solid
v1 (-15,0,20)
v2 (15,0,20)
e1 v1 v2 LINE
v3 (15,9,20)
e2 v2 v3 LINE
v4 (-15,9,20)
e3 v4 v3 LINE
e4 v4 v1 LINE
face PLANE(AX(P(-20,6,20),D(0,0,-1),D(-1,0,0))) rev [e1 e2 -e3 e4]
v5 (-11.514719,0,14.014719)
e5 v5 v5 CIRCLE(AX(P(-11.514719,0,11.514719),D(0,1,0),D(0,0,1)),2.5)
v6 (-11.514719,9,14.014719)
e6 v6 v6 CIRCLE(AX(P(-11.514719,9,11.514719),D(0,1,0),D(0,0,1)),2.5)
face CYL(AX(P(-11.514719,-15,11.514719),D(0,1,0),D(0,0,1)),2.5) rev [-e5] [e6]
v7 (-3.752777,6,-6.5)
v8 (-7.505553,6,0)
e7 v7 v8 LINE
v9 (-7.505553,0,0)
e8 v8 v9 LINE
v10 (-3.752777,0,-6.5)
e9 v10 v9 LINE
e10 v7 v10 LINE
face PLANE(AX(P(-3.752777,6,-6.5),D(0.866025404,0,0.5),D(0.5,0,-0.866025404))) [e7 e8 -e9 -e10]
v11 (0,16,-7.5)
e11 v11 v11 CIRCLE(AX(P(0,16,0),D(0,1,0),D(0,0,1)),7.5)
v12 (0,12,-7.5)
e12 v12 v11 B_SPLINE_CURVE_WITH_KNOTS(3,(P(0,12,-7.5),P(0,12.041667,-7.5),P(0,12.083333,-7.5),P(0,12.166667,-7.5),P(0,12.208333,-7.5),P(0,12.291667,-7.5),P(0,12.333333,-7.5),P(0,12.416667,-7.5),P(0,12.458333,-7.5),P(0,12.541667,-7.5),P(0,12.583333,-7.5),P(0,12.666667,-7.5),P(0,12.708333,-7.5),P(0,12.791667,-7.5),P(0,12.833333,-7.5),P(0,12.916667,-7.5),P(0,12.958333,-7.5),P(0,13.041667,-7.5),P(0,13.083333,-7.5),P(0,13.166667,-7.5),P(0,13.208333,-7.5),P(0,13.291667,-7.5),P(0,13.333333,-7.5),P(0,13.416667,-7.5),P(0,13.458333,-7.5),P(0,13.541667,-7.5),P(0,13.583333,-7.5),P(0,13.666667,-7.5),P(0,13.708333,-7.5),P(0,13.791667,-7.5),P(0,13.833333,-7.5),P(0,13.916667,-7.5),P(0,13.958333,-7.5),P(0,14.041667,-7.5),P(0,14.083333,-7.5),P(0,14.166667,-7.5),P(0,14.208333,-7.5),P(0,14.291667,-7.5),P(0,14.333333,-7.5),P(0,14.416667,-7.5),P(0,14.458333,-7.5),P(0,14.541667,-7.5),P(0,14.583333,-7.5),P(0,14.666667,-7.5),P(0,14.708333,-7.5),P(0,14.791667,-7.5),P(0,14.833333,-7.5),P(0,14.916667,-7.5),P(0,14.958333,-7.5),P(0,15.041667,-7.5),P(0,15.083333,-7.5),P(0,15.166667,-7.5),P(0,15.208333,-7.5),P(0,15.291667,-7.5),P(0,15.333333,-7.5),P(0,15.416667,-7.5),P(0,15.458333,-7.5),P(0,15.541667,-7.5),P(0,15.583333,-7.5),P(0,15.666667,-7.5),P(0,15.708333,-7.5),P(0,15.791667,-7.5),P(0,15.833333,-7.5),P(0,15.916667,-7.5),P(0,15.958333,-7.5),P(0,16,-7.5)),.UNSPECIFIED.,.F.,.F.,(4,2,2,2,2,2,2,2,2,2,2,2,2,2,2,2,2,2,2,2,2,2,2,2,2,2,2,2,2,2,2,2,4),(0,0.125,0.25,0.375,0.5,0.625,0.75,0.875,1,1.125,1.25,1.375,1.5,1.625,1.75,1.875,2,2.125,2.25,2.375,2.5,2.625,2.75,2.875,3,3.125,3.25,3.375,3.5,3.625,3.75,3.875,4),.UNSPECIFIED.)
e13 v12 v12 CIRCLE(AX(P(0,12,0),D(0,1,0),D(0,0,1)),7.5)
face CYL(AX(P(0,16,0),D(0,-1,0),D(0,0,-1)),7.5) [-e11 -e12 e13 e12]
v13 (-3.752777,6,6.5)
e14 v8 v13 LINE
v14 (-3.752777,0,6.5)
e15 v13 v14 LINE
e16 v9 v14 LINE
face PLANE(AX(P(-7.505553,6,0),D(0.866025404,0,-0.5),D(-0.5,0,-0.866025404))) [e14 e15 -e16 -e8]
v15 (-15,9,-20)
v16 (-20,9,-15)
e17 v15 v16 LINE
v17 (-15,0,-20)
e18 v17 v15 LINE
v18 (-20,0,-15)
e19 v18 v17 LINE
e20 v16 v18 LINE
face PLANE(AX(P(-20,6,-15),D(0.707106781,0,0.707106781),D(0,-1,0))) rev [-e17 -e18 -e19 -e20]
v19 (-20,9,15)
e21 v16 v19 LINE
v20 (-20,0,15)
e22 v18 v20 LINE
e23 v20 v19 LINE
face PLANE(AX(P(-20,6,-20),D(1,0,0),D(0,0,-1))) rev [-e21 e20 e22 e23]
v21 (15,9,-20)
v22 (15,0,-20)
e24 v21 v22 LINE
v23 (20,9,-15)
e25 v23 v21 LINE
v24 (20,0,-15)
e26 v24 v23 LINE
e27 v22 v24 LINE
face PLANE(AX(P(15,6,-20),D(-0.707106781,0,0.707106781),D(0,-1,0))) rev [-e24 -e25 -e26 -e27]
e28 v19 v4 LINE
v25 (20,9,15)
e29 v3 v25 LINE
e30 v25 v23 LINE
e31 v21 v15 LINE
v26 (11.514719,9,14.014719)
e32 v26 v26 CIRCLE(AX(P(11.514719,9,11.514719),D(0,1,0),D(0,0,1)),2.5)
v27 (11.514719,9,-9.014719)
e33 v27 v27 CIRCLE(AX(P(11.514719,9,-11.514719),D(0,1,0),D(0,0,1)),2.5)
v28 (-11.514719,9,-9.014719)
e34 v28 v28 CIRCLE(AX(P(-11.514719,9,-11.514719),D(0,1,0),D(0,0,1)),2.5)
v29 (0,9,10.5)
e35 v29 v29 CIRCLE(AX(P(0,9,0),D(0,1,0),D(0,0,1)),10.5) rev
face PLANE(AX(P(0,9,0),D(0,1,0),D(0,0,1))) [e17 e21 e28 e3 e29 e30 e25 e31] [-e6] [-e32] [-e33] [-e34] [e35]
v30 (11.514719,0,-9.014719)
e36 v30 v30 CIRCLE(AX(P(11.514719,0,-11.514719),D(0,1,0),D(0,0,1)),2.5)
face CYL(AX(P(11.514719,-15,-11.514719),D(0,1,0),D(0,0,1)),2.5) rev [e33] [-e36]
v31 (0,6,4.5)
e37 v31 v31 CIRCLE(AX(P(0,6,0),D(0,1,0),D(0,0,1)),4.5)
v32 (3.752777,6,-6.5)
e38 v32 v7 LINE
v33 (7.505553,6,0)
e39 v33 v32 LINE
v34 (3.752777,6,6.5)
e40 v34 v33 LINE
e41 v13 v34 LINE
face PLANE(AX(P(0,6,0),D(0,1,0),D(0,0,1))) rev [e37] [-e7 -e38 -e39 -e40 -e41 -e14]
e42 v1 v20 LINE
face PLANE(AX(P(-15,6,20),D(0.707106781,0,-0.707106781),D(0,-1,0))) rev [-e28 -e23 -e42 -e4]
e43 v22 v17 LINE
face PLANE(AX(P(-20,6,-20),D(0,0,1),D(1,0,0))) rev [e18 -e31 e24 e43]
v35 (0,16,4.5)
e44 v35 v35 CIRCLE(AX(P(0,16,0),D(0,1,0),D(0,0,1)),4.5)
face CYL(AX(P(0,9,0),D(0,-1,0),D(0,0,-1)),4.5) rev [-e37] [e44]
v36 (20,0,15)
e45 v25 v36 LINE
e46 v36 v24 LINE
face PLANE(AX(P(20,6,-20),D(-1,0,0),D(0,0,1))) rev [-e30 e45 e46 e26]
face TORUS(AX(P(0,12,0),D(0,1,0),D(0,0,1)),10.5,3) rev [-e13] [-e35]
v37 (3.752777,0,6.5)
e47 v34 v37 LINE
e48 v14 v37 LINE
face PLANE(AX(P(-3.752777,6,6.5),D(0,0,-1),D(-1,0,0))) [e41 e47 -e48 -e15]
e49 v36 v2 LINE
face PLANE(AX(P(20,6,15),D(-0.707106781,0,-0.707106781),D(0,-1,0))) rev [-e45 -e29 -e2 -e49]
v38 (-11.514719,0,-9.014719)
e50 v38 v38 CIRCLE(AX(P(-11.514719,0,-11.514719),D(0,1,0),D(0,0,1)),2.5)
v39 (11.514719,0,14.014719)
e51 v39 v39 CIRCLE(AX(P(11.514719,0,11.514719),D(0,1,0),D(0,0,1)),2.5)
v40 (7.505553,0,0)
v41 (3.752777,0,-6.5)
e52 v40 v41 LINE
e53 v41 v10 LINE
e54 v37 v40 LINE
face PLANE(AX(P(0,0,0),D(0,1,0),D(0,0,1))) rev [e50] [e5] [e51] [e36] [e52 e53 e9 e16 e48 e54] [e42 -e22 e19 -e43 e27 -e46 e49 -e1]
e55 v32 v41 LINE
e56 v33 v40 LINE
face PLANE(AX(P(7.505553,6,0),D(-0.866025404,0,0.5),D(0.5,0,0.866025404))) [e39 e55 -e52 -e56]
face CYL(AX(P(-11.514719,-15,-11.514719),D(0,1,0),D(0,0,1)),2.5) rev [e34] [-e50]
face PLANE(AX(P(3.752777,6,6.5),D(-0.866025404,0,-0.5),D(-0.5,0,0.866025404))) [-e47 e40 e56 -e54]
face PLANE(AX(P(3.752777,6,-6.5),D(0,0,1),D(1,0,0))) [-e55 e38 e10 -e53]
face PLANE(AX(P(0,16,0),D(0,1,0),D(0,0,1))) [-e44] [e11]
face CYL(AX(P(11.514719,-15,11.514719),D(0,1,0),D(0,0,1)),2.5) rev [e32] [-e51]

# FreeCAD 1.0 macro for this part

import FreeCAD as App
import Part
import Sketcher
from FreeCAD import Vector
Q = App.Units.Quantity


def edges_at(feature, points):
    """Names of the edges that pass closest to the given points."""
    edges = feature.Shape.Edges
    near = lambda p: min(range(len(edges)), key=lambda i: edges[i].distToShape(Part.Vertex(*p))[0])
    return sorted({f"Edge{near(p) + 1}" for p in points})

doc = App.newDocument("Part")
params = doc.addObject("Spreadsheet::Sheet", "Params")
for row, (alias, value) in enumerate([
    ("sketch1_width", "40 mm"),
    ("pad1_length", "6 mm"),
    ("sketch2_diameter", "9 mm"),
    ("sketch2_width", "40 mm"),
    ("pad2_length", "3 mm"),
    ("sketch3_diameter", "5 mm"),
    ("pocket1_length", "24 mm"),
    ("sketch4_diameter", "15 mm"),
    ("sketch4_diameter2", "9 mm"),
    ("pad3_length", "7 mm"),
    ("fillet_radius", "3 mm"),
    ("chamfer_size", "5 mm"),
], start=1):
    params.set(f"A{row}", alias)
    params.set(f"B{row}", "=" + value)
    params.setAlias(f"B{row}", alias)

body = doc.addObject("PartDesign::Body", "Body")

# Sketch on XZ plane
sketch1 = body.newObject("Sketcher::SketchObject", "Sketch")
sketch1.AttachmentSupport = (doc.getObject("XZ_Plane"), [""])
sketch1.MapMode = "FlatFace"
sketch1.addGeometry([
    Part.LineSegment(Vector(-20, -20, 0), Vector(-20, 20, 0)),  # 0
    Part.LineSegment(Vector(-20, 20, 0), Vector(20, 20, 0)),  # 1
    Part.LineSegment(Vector(20, 20, 0), Vector(20, -20, 0)),  # 2
    Part.LineSegment(Vector(20, -20, 0), Vector(-20, -20, 0)),  # 3
    Part.LineSegment(Vector(3.752777, -6.5, 0), Vector(7.505553, 0, 0)),  # 4
    Part.LineSegment(Vector(7.505553, 0, 0), Vector(3.752777, 6.5, 0)),  # 5
    Part.LineSegment(Vector(3.752777, 6.5, 0), Vector(-3.752777, 6.5, 0)),  # 6
    Part.LineSegment(Vector(-3.752777, 6.5, 0), Vector(-7.505553, 0, 0)),  # 7
    Part.LineSegment(Vector(-7.505553, 0, 0), Vector(-3.752777, -6.5, 0)),  # 8
    Part.LineSegment(Vector(-3.752777, -6.5, 0), Vector(3.752777, -6.5, 0)),  # 9
], False)
sketch1.addConstraint([
    Sketcher.Constraint("Coincident", 0, 2, 1, 1),
    Sketcher.Constraint("Coincident", 1, 2, 2, 1),
    Sketcher.Constraint("Coincident", 2, 2, 3, 1),
    Sketcher.Constraint("Coincident", 3, 2, 0, 1),
    Sketcher.Constraint("Coincident", 4, 2, 5, 1),
    Sketcher.Constraint("Coincident", 5, 2, 6, 1),
    Sketcher.Constraint("Coincident", 6, 2, 7, 1),
    Sketcher.Constraint("Coincident", 7, 2, 8, 1),
    Sketcher.Constraint("Coincident", 8, 2, 9, 1),
    Sketcher.Constraint("Coincident", 9, 2, 4, 1),
    Sketcher.Constraint("Vertical", 0),
    Sketcher.Constraint("Horizontal", 1),
    Sketcher.Constraint("Vertical", 2),
    Sketcher.Constraint("Horizontal", 3),
    Sketcher.Constraint("Horizontal", 6),
    Sketcher.Constraint("Horizontal", 9),
    Sketcher.Constraint("Symmetric", 0, 2, 2, 2, -1, 1),
    Sketcher.Constraint("Symmetric", 4, 2, 7, 2, -1, 1),
    Sketcher.Constraint("Symmetric", 5, 2, 8, 2, -1, 1),
    Sketcher.Constraint("PointOnObject", 4, 2, -1),
    Sketcher.Constraint("Parallel", 4, 7),
    Sketcher.Constraint("Vertical", 6, 2, 8, 2),
    Sketcher.Constraint("Equal", 3, 0),
    Sketcher.Constraint("DistanceX", 1, 1, 1, 2, Q("40 mm")),
    Sketcher.Constraint("Angle", 4, Q("60 deg")),
    Sketcher.Constraint("DistanceY", 8, 2, 6, 2, Q("13 mm")),
    Sketcher.Constraint("DistanceX", 6, 2, 6, 1, Q("7.505554 mm")),
])
sketch1.setExpression("Constraints[23]", "Params.sketch1_width")
pad1 = body.newObject("PartDesign::Pad", "Pad")
pad1.Profile = sketch1
pad1.setExpression("Length", "Params.pad1_length")
pad1.Reversed = True

# Sketch on XZ plane
sketch2 = body.newObject("Sketcher::SketchObject", "Sketch001")
sketch2.AttachmentSupport = (doc.getObject("XZ_Plane"), [""])
sketch2.MapMode = "FlatFace"
sketch2.AttachmentOffset = App.Placement(Vector(0, 0, -6), App.Rotation())
sketch2.addGeometry([
    Part.LineSegment(Vector(-20, -20, 0), Vector(-20, 20, 0)),  # 0
    Part.LineSegment(Vector(-20, 20, 0), Vector(20, 20, 0)),  # 1
    Part.LineSegment(Vector(20, 20, 0), Vector(20, -20, 0)),  # 2
    Part.LineSegment(Vector(20, -20, 0), Vector(-20, -20, 0)),  # 3
    Part.Circle(Vector(0, 0, 0), Vector(0, 0, 1), 4.5),  # 4
], False)
sketch2.addConstraint([
    Sketcher.Constraint("Coincident", 0, 2, 1, 1),
    Sketcher.Constraint("Coincident", 1, 2, 2, 1),
    Sketcher.Constraint("Coincident", 2, 2, 3, 1),
    Sketcher.Constraint("Coincident", 3, 2, 0, 1),
    Sketcher.Constraint("Vertical", 0),
    Sketcher.Constraint("Horizontal", 1),
    Sketcher.Constraint("Vertical", 2),
    Sketcher.Constraint("Horizontal", 3),
    Sketcher.Constraint("Coincident", 4, 3, -1, 1),
    Sketcher.Constraint("Symmetric", 0, 2, 2, 2, -1, 1),
    Sketcher.Constraint("Equal", 3, 0),
    Sketcher.Constraint("Diameter", 4, Q("9 mm")),
    Sketcher.Constraint("DistanceX", 1, 1, 1, 2, Q("40 mm")),
])
sketch2.setExpression("Constraints[11]", "Params.sketch2_diameter")
sketch2.setExpression("Constraints[12]", "Params.sketch2_width")
pad2 = body.newObject("PartDesign::Pad", "Pad001")
pad2.Profile = sketch2
pad2.setExpression("Length", "Params.pad2_length")
pad2.Reversed = True

# Sketch on XZ plane
sketch3 = body.newObject("Sketcher::SketchObject", "Sketch002")
sketch3.AttachmentSupport = (doc.getObject("XZ_Plane"), [""])
sketch3.MapMode = "FlatFace"
sketch3.AttachmentOffset = App.Placement(Vector(0, 0, -9), App.Rotation())
sketch3.addGeometry([
    Part.Circle(Vector(-11.514719, -11.514719, 0), Vector(0, 0, 1), 2.5),
    Part.Circle(Vector(11.514719, -11.514719, 0), Vector(0, 0, 1), 2.5),
    Part.Circle(Vector(11.514719, 11.514719, 0), Vector(0, 0, 1), 2.5),
    Part.Circle(Vector(-11.514719, 11.514719, 0), Vector(0, 0, 1), 2.5),
], False)
sketch3.addConstraint([
    Sketcher.Constraint("Equal", 0, 1),
    Sketcher.Constraint("Equal", 1, 2),
    Sketcher.Constraint("Equal", 2, 3),
    Sketcher.Constraint("Symmetric", 0, 3, 2, 3, -1, 1),
    Sketcher.Constraint("Symmetric", 1, 3, 3, 3, -1, 1),
    Sketcher.Constraint("Symmetric", 0, 3, 1, 3, -2),
    Sketcher.Constraint("Diameter", 0, Q("5 mm")),
    Sketcher.Constraint("DistanceX", 0, 3, -1, 1, Q("11.514719 mm")),
    Sketcher.Constraint("DistanceY", 0, 3, -1, 1, Q("11.514719 mm")),
])
sketch3.setExpression("Constraints[6]", "Params.sketch3_diameter")
pocket1 = body.newObject("PartDesign::Pocket", "Pocket")
pocket1.Profile = sketch3
pocket1.setExpression("Length", "Params.pocket1_length")
pocket1.Reversed = True

# Sketch on XZ plane
sketch4 = body.newObject("Sketcher::SketchObject", "Sketch003")
sketch4.AttachmentSupport = (doc.getObject("XZ_Plane"), [""])
sketch4.MapMode = "FlatFace"
sketch4.AttachmentOffset = App.Placement(Vector(0, 0, -9), App.Rotation())
sketch4.addGeometry([
    Part.Circle(Vector(0, 0, 0), Vector(0, 0, 1), 7.5),
    Part.Circle(Vector(0, 0, 0), Vector(0, 0, 1), 4.5),
], False)
sketch4.addConstraint([
    Sketcher.Constraint("Coincident", 0, 3, -1, 1),
    Sketcher.Constraint("Coincident", 1, 3, -1, 1),
    Sketcher.Constraint("Diameter", 0, Q("15 mm")),
    Sketcher.Constraint("Diameter", 1, Q("9 mm")),
])
sketch4.setExpression("Constraints[2]", "Params.sketch4_diameter")
sketch4.setExpression("Constraints[3]", "Params.sketch4_diameter2")
pad3 = body.newObject("PartDesign::Pad", "Pad002")
pad3.Profile = sketch4
pad3.setExpression("Length", "Params.pad3_length")
pad3.Reversed = True
doc.recompute()

fillet = body.newObject("PartDesign::Fillet", "Fillet")
fillet.Base = (pad3, edges_at(pad3, [(0, 9, 7.5)]))
fillet.setExpression("Radius", "Params.fillet_radius")
doc.recompute()

chamfer = body.newObject("PartDesign::Chamfer", "Chamfer")
chamfer.Base = (fillet, edges_at(fillet, [
    (20, 4.5, 20),
    (-20, 4.5, 20),
    (-20, 4.5, -20),
    (20, 4.5, -20),
]))
chamfer.setExpression("Size", "Params.chamfer_size")

doc.recompute()
